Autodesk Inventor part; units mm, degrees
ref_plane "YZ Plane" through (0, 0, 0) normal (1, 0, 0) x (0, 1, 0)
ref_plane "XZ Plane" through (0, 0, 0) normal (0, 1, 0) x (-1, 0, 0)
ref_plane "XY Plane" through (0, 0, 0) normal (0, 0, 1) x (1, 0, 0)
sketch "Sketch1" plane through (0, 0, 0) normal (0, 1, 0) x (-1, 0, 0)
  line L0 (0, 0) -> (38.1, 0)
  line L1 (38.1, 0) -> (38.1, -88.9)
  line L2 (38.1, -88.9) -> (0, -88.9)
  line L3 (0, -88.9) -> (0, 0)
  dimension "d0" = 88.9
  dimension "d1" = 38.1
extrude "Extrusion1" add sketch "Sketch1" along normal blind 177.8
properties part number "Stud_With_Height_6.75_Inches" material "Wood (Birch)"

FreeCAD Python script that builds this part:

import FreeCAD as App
import Part
import Sketcher
Q = App.Units.Quantity

doc = App.newDocument("Part")
params = doc.addObject("Spreadsheet::Sheet", "Params")
for row, (alias, value) in enumerate([
    ("sketch1_width", "1.5 in"),
    ("sketch1_height", "3.5 in"),
    ("pad1_length", "7 in"),
], start=1):
    params.set(f"A{row}", alias)
    params.set(f"B{row}", "=" + value)
    params.setAlias(f"B{row}", alias)

body = doc.addObject("PartDesign::Body", "Body")

sketch1 = doc.addObject("Sketcher::SketchObject", "Sketch")
body.addObject(sketch1)
sketch1.AttachmentSupport = (doc.XZ_Plane, [""])
sketch1.MapMode = "FlatFace"
sketch1.addGeometry(Part.LineSegment(App.Vector(-38, 0, 0), App.Vector(0, 0, 0)), False)
sketch1.addGeometry(Part.LineSegment(App.Vector(0, 0, 0), App.Vector(0, -89, 0)), False)
sketch1.addGeometry(Part.LineSegment(App.Vector(0, -89, 0), App.Vector(-38, -89, 0)), False)
sketch1.addGeometry(Part.LineSegment(App.Vector(-38, -89, 0), App.Vector(-38, 0, 0)), False)
sketch1.addConstraint(Sketcher.Constraint("Coincident", 0, 2, 1, 1))
sketch1.addConstraint(Sketcher.Constraint("Coincident", 1, 2, 2, 1))
sketch1.addConstraint(Sketcher.Constraint("Coincident", 2, 2, 3, 1))
sketch1.addConstraint(Sketcher.Constraint("Coincident", 3, 2, 0, 1))
sketch1.addConstraint(Sketcher.Constraint("Horizontal", 0))
sketch1.addConstraint(Sketcher.Constraint("Vertical", 1))
sketch1.addConstraint(Sketcher.Constraint("Horizontal", 2))
sketch1.addConstraint(Sketcher.Constraint("Vertical", 3))
sketch1.addConstraint(Sketcher.Constraint("Coincident", 0, 2, -1, 1))
sketch1.addConstraint(Sketcher.Constraint("DistanceX", 0, 1, 0, 2, Q("1.5 in")))
sketch1.addConstraint(Sketcher.Constraint("DistanceY", 1, 2, 1, 1, Q("3.5 in")))
sketch1.setExpression("Constraints[9]", "Params.sketch1_width")
sketch1.setExpression("Constraints[10]", "Params.sketch1_height")
pad1 = doc.addObject("PartDesign::Pad", "Pad")
body.addObject(pad1)
pad1.Profile = sketch1
pad1.setExpression("Length", "Params.pad1_length")
pad1.Reversed = True

doc.recompute()
